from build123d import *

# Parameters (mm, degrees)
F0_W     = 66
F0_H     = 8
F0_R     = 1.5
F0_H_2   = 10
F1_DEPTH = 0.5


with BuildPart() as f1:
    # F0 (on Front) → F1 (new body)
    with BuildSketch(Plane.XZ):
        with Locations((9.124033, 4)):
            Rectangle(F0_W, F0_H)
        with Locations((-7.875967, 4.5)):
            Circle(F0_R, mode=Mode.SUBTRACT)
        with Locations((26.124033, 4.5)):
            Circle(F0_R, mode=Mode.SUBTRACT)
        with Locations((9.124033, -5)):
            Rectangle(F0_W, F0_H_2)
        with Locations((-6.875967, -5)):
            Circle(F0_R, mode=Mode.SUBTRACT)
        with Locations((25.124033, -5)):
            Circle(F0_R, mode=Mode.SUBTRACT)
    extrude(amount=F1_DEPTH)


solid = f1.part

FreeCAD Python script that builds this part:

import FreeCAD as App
import Part
import Sketcher

V = App.Vector
Q = App.Units.Quantity


def add_polygon(sketch, points):
    """Adds a closed chain of lines whose ends are joined by coincident constraints."""
    first, n = sketch.GeometryCount, len(points)
    for a, b in zip(points, points[1:] + points[:1]):
        sketch.addGeometry(Part.LineSegment(App.Vector(*a, 0), App.Vector(*b, 0)), False)
    for i in range(n):
        sketch.addConstraint(Sketcher.Constraint("Coincident", first + i, 2, first + (i + 1) % n, 1))

doc = App.newDocument("Part")
body = doc.addObject("PartDesign::Body", "Body")

sketch1 = body.newObject("Sketcher::SketchObject", "Sketch")
sketch1.AttachmentSupport = (doc.getObject("XZ_Plane"), [""])
sketch1.MapMode = "FlatFace"
add_polygon(sketch1, [(-23.875967, 8), (-23.875967, -10), (42.124033, -10), (42.124033, 8)])
sketch1.addGeometry(Part.Circle(V(-6.875967, -5, 0), V(0, 0, 1), 1.5), False)
sketch1.addGeometry(Part.Circle(V(25.124033, -5, 0), V(0, 0, 1), 1.5), False)
sketch1.addGeometry(Part.Circle(V(-7.875967, 4.5, 0), V(0, 0, 1), 1.5), False)
sketch1.addGeometry(Part.Circle(V(26.124033, 4.5, 0), V(0, 0, 1), 1.5), False)
sketch1.addConstraint(Sketcher.Constraint("Vertical", 0))
sketch1.addConstraint(Sketcher.Constraint("Horizontal", 1))
sketch1.addConstraint(Sketcher.Constraint("Vertical", 2))
sketch1.addConstraint(Sketcher.Constraint("Horizontal", 3))
sketch1.addConstraint(Sketcher.Constraint("Equal", 4, 5))
sketch1.addConstraint(Sketcher.Constraint("Equal", 5, 6))
sketch1.addConstraint(Sketcher.Constraint("Equal", 6, 7))
sketch1.addConstraint(Sketcher.Constraint("Horizontal", 4, 3, 5, 3))
sketch1.addConstraint(Sketcher.Constraint("Horizontal", 6, 3, 7, 3))
sketch1.addConstraint(Sketcher.Constraint("Diameter", 4, Q("3 mm")))
sketch1.addConstraint(Sketcher.Constraint("DistanceX", 1, 1, 1, 2, Q("66 mm")))
sketch1.addConstraint(Sketcher.Constraint("DistanceY", 0, 2, 0, 1, Q("18 mm")))
sketch1.addConstraint(Sketcher.Constraint("DistanceY", 4, 3, -1, 1, Q("5 mm")))
sketch1.addConstraint(Sketcher.Constraint("DistanceY", 0, 2, -1, 1, Q("10 mm")))
sketch1.addConstraint(Sketcher.Constraint("DistanceX", 4, 3, 5, 3, Q("32 mm")))
sketch1.addConstraint(Sketcher.Constraint("DistanceX", 6, 3, 4, 3, Q("1 mm")))
sketch1.addConstraint(Sketcher.Constraint("DistanceX", 5, 3, 7, 3, Q("1 mm")))
sketch1.addConstraint(Sketcher.Constraint("DistanceX", 0, 2, 4, 3, Q("17 mm")))
sketch1.addConstraint(Sketcher.Constraint("DistanceY", -1, 1, 6, 3, Q("4.5 mm")))
sketch1.addConstraint(Sketcher.Constraint("DistanceX", 4, 3, -1, 1, Q("6.875967 mm")))
pad1 = body.newObject("PartDesign::Pad", "Pad")
pad1.Profile = sketch1
pad1.Length = 0.5

doc.recompute()
